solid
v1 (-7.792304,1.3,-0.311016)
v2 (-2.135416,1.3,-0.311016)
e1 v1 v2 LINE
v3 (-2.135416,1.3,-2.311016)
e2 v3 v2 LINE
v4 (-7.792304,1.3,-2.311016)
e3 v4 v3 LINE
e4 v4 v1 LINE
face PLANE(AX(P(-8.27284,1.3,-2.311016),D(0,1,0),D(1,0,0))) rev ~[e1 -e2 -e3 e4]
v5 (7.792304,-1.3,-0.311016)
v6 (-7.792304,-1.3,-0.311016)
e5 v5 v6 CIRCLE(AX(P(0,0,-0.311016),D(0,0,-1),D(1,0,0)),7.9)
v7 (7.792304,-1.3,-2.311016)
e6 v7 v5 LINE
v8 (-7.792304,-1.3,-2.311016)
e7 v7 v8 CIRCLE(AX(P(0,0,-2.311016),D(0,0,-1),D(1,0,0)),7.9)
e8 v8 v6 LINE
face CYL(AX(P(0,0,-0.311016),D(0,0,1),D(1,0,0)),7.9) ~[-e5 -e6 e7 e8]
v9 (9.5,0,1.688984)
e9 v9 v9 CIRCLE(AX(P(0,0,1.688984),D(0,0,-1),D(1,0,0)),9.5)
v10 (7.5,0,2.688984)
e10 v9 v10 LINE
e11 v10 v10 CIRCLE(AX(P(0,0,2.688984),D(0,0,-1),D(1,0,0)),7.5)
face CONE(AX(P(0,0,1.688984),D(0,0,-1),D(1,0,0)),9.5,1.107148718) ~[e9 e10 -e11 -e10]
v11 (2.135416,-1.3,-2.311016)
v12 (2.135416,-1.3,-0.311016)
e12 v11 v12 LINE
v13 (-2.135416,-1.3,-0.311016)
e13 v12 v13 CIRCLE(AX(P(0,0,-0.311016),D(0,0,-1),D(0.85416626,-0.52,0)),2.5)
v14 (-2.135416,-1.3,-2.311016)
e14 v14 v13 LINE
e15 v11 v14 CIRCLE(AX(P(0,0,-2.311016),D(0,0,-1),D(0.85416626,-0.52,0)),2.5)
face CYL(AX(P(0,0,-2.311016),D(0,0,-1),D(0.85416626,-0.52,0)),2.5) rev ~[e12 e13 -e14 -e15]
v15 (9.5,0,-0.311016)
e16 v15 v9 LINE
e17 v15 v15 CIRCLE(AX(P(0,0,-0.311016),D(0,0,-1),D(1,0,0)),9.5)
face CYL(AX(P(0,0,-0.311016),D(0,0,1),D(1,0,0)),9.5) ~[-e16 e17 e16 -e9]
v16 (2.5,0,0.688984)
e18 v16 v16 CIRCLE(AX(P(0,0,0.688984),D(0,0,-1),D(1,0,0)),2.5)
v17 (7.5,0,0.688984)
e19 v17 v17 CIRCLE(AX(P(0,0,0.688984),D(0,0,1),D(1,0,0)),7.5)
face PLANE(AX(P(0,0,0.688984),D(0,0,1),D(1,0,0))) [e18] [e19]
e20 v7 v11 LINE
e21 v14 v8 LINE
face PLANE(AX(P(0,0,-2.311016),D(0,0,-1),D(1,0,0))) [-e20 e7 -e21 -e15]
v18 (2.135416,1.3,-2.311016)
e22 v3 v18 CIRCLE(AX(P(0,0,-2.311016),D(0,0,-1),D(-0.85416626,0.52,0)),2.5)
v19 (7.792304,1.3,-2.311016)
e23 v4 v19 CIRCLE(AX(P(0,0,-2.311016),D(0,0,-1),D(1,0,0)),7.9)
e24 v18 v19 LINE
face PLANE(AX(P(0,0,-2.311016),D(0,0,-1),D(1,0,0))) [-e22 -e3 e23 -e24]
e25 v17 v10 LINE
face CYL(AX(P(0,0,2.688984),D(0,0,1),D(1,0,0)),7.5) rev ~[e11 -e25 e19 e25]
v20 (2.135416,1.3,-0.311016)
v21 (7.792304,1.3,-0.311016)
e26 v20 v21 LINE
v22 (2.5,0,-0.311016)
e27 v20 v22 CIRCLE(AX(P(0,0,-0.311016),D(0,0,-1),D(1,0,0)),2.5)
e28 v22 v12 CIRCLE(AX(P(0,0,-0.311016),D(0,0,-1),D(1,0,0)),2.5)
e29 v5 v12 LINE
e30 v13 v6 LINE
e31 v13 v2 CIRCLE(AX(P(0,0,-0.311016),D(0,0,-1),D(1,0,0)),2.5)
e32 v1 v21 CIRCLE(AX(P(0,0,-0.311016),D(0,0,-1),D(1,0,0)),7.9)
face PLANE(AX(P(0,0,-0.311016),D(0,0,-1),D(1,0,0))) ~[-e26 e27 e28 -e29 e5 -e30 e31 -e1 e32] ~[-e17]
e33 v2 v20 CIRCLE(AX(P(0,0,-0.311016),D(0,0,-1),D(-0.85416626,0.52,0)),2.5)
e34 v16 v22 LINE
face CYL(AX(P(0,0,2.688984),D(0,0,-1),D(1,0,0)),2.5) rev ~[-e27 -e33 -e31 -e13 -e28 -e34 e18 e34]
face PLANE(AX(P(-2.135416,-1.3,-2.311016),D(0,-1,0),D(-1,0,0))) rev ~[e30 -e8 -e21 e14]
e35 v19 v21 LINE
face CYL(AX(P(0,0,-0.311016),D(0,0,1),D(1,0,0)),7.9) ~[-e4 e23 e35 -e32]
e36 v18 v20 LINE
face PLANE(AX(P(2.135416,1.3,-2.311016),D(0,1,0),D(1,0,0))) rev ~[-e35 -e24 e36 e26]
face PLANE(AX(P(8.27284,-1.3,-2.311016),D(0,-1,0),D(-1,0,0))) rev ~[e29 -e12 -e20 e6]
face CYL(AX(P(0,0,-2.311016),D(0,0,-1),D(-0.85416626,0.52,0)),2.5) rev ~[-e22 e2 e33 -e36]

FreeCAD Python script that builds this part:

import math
import FreeCAD as App
import Part
import Sketcher
from FreeCAD import Vector
Q = App.Units.Quantity


def add_polygon(sketch, points):
    """Adds a closed chain of lines whose ends are joined by coincident constraints."""
    first, n = sketch.GeometryCount, len(points)
    for a, b in zip(points, points[1:] + points[:1]):
        sketch.addGeometry(Part.LineSegment(App.Vector(*a, 0), App.Vector(*b, 0)), False)
    for i in range(n):
        sketch.addConstraint(Sketcher.Constraint("Coincident", first + i, 2, first + (i + 1) % n, 1))

doc = App.newDocument("Part")
body = doc.addObject("PartDesign::Body", "Body")

sketch1 = body.newObject("Sketcher::SketchObject", "Sketch")
sketch1.AttachmentSupport = (doc.getObject("XZ_Plane"), [""])
sketch1.MapMode = "FlatFace"
add_polygon(sketch1, [(2.5, 2.7), (2.5, -0.3), (9.5, -0.3), (9.5, 1.7), (7.5, 2.7)])
sketch1.addConstraint([
    Sketcher.Constraint("Vertical", 0),
    Sketcher.Constraint("Horizontal", 1),
    Sketcher.Constraint("Vertical", 2),
    Sketcher.Constraint("Horizontal", 4),
    Sketcher.Constraint("DistanceX", 1, 1, 1, 2, Q("7 mm")),
    Sketcher.Constraint("DistanceX", 4, 2, 4, 1, Q("5 mm")),
    Sketcher.Constraint("DistanceY", 0, 2, 0, 1, Q("3 mm")),
    Sketcher.Constraint("DistanceY", 2, 1, 2, 2, Q("2 mm")),
    Sketcher.Constraint("DistanceX", -1, 1, 0, 2, Q("2.5 mm")),
    Sketcher.Constraint("DistanceY", 0, 2, -1, 1, Q("0.311016 mm")),
])
revolution = body.newObject("PartDesign::Revolution", "Revolution")
revolution.Profile = sketch1
revolution.ReferenceAxis = (sketch1, ["V_Axis"])
revolution.Angle = 360

sketch2 = body.newObject("Sketcher::SketchObject", "Sketch001")
sketch2.AttachmentSupport = (doc.getObject("XY_Plane"), [""])
sketch2.MapMode = "FlatFace"
sketch2.AttachmentOffset = App.Placement(Vector(0, 0, -0.311016), App.Rotation())
sketch2.addGeometry(Part.Circle(Vector(0, 0, 0), Vector(0, 0, 1), 8), False)
sketch2.addConstraint([
    Sketcher.Constraint("Coincident", 0, 3, -1, 1),
    Sketcher.Constraint("Diameter", 0, Q("15.8 mm")),
])
pad1 = body.newObject("PartDesign::Pad", "Pad")
pad1.Profile = sketch2
pad1.Length = 2
pad1.Reversed = True

sketch3 = body.newObject("Sketcher::SketchObject", "Sketch002")
sketch3.AttachmentSupport = (doc.getObject("XY_Plane"), [""])
sketch3.MapMode = "FlatFace"
sketch3.AttachmentOffset = App.Placement(Vector(0, 0, -2.311016), App.Rotation())
sketch3.addGeometry([
    Part.ArcOfCircle(Part.Circle(Vector(0, 0, 0), Vector(0, 0, 1), 2.5), math.radians(31), math.radians(149)),
    Part.LineSegment(Vector(2.1, 1.3, 0), Vector(8.3, 1.3, 0)),
    Part.LineSegment(Vector(8.3, 1.3, 0), Vector(8.3, -1.3, 0)),
    Part.LineSegment(Vector(8.3, -1.3, 0), Vector(2.1, -1.3, 0)),
    Part.ArcOfCircle(Part.Circle(Vector(0, 0, 0), Vector(0, 0, 1), 2.5), math.radians(-149), math.radians(-31)),
    Part.LineSegment(Vector(-2.1, -1.3, 0), Vector(-8.3, -1.3, 0)),
    Part.LineSegment(Vector(-8.3, -1.3, 0), Vector(-8.3, 1.3, 0)),
    Part.LineSegment(Vector(-8.3, 1.3, 0), Vector(-2.1, 1.3, 0)),
], False)
sketch3.addConstraint([
    Sketcher.Constraint("Coincident", 0, 1, 1, 1),
    Sketcher.Constraint("Coincident", 1, 2, 2, 1),
    Sketcher.Constraint("Coincident", 2, 2, 3, 1),
    Sketcher.Constraint("Coincident", 3, 2, 4, 2),
    Sketcher.Constraint("Coincident", 4, 1, 5, 1),
    Sketcher.Constraint("Coincident", 5, 2, 6, 1),
    Sketcher.Constraint("Coincident", 6, 2, 7, 1),
    Sketcher.Constraint("Coincident", 7, 2, 0, 2),
    Sketcher.Constraint("Horizontal", 1),
    Sketcher.Constraint("Vertical", 2),
    Sketcher.Constraint("Horizontal", 3),
    Sketcher.Constraint("Horizontal", 5),
    Sketcher.Constraint("Vertical", 6),
    Sketcher.Constraint("Horizontal", 7),
    Sketcher.Constraint("Coincident", 0, 3, -1, 1),
    Sketcher.Constraint("Coincident", 4, 3, -1, 1),
    Sketcher.Constraint("Equal", 0, 4),
    Sketcher.Constraint("Symmetric", 1, 2, 5, 2, -1, 1),
    Sketcher.Constraint("Horizontal", 3, 2, 4, 1),
    Sketcher.Constraint("Horizontal", 1, 2, 6, 2),
    Sketcher.Constraint("Radius", 0, Q("2.5 mm")),
    Sketcher.Constraint("DistanceY", 2, 2, 2, 1, Q("2.6 mm")),
    Sketcher.Constraint("DistanceX", 1, 1, 1, 2, Q("6.137424 mm")),
])
pocket1 = body.newObject("PartDesign::Pocket", "Pocket")
pocket1.Profile = sketch3
pocket1.Length = 2
pocket1.Reversed = True

sketch4 = body.newObject("Sketcher::SketchObject", "Sketch003")
sketch4.AttachmentSupport = (doc.getObject("XY_Plane"), [""])
sketch4.MapMode = "FlatFace"
sketch4.AttachmentOffset = App.Placement(Vector(0, 0, 2.688984), App.Rotation())
sketch4.addGeometry(Part.Circle(Vector(0, 0, 0), Vector(0, 0, 1), 8), False)
sketch4.addConstraint([
    Sketcher.Constraint("Coincident", 0, 3, -1, 1),
    Sketcher.Constraint("Diameter", 0, Q("15 mm")),
])
pocket2 = body.newObject("PartDesign::Pocket", "Pocket001")
pocket2.Profile = sketch4
pocket2.Length = 2

sketch5 = body.newObject("Sketcher::SketchObject", "Sketch004")
sketch5.AttachmentSupport = (doc.getObject("XY_Plane"), [""])
sketch5.MapMode = "FlatFace"
sketch5.AttachmentOffset = App.Placement(Vector(0, 0, 2.688984), App.Rotation())
sketch5.addGeometry(Part.Circle(Vector(0, 0, 0), Vector(0, 0, 1), 8), False)
sketch5.addConstraint([
    Sketcher.Constraint("Coincident", 0, 3, -1, 1),
    Sketcher.Constraint("Diameter", 0, Q("15 mm")),
])
pocket3 = body.newObject("PartDesign::Pocket", "Pocket002")
pocket3.Profile = sketch5
pocket3.Length = 1

doc.recompute()
